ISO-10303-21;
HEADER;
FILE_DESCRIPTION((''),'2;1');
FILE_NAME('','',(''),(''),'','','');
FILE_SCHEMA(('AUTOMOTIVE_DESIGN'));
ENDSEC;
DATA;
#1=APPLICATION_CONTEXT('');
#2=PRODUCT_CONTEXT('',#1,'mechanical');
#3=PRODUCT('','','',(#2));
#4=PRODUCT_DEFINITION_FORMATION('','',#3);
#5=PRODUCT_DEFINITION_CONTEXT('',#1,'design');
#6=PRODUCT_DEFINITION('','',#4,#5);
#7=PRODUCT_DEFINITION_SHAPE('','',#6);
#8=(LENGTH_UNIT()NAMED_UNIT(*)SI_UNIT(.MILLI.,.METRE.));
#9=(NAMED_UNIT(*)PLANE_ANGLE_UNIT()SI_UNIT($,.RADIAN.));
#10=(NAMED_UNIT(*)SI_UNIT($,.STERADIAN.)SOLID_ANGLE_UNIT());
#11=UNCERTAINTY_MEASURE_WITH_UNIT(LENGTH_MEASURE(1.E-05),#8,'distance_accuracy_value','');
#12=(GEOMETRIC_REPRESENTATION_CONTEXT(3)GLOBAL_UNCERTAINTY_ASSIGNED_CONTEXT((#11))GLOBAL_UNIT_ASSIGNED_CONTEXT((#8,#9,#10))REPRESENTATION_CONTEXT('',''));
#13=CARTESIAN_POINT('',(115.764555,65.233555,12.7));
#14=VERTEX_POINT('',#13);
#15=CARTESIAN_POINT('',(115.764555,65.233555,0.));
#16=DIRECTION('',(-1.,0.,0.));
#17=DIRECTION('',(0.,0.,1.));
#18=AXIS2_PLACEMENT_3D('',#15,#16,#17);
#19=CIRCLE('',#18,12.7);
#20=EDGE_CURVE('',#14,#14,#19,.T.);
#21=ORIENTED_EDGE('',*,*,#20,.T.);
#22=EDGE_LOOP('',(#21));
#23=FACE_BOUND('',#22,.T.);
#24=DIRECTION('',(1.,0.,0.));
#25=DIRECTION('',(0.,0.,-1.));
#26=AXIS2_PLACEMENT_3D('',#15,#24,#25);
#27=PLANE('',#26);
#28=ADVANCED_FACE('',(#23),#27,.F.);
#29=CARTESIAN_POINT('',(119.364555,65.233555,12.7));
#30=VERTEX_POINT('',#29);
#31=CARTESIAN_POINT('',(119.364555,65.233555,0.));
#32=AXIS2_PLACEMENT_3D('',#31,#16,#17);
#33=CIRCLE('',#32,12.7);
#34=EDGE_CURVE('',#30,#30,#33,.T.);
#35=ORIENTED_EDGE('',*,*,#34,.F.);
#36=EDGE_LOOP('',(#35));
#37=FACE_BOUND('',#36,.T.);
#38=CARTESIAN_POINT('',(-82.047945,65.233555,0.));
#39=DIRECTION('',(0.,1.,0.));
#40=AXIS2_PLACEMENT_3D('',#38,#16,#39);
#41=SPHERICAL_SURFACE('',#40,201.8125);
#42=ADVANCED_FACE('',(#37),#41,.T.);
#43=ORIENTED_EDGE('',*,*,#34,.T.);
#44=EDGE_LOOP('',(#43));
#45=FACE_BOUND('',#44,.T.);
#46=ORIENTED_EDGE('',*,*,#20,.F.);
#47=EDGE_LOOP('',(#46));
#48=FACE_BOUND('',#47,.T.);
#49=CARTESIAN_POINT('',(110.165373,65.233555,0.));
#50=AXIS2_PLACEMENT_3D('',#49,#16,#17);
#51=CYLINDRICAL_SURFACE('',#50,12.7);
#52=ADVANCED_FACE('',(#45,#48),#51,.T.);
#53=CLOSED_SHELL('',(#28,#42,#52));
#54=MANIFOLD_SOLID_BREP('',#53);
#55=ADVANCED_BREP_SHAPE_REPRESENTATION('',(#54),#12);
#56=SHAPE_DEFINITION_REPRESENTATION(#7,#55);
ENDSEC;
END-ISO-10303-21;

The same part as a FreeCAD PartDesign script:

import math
import FreeCAD as App
import Part
import Sketcher
from FreeCAD import Vector
Q = App.Units.Quantity

doc = App.newDocument("Part")
params = doc.addObject("Spreadsheet::Sheet", "Params")
for row, (alias, value) in enumerate([
    ("sketch1_width", "4 mm"),
    ("sketch1_width2", "3.6 mm"),
    ("sketch1_height", "12.7 mm"),
    ("revolution_angle", "360 deg"),
], start=1):
    params.set(f"A{row}", alias)
    params.set(f"B{row}", "=" + value)
    params.setAlias(f"B{row}", alias)

body = doc.addObject("PartDesign::Body", "Body")

# Sketch on XY plane
sketch1 = body.newObject("Sketcher::SketchObject", "Sketch")
sketch1.AttachmentSupport = (doc.getObject("XY_Plane"), [""])
sketch1.MapMode = "FlatFace"
sketch1.addGeometry([
    Part.LineSegment(Vector(115.8, 77.9, 0), Vector(115.8, 65.2, 0)),
    Part.LineSegment(Vector(115.8, 65.2, 0), Vector(119.8, 65.2, 0)),
    Part.ArcOfCircle(Part.Circle(Vector(-82, 65.2, 0), Vector(0, 0, 1), 201.8), math.radians(0), math.radians(3.61)),
    Part.LineSegment(Vector(119.4, 77.9, 0), Vector(115.8, 77.9, 0)),
], False)
sketch1.addGeometry(Part.LineSegment(Vector(-82, 65.2, 0), Vector(119.8, 65.2, 0)), True)  # axis
sketch1.addConstraint([
    Sketcher.Constraint("Coincident", 0, 2, 1, 1),
    Sketcher.Constraint("Coincident", 1, 2, 2, 1),
    Sketcher.Constraint("Coincident", 2, 2, 3, 1),
    Sketcher.Constraint("Coincident", 3, 2, 0, 1),
    Sketcher.Constraint("Vertical", 0),
    Sketcher.Constraint("Horizontal", 1),
    Sketcher.Constraint("Horizontal", 3),
    Sketcher.Constraint("Horizontal", 4),
    Sketcher.Constraint("Coincident", 4, 1, 2, 3),
    Sketcher.Constraint("Coincident", 4, 2, 1, 2),
    Sketcher.Constraint("DistanceX", 1, 1, 1, 2, Q("4 mm")),
    Sketcher.Constraint("DistanceX", 3, 2, 3, 1, Q("3.6 mm")),
    Sketcher.Constraint("DistanceY", 0, 2, 0, 1, Q("12.7 mm")),
    Sketcher.Constraint("DistanceX", 2, 3, -1, 1, Q("82.047945 mm")),
    Sketcher.Constraint("DistanceY", -1, 1, 2, 3, Q("65.233555 mm")),
])
sketch1.setExpression("Constraints[10]", "Params.sketch1_width")
sketch1.setExpression("Constraints[11]", "Params.sketch1_width2")
sketch1.setExpression("Constraints[12]", "Params.sketch1_height")
revolution = body.newObject("PartDesign::Revolution", "Revolution")
revolution.Profile = sketch1
revolution.ReferenceAxis = (sketch1, ["Axis0"])
revolution.setExpression("Angle", "Params.revolution_angle")

doc.recompute()
